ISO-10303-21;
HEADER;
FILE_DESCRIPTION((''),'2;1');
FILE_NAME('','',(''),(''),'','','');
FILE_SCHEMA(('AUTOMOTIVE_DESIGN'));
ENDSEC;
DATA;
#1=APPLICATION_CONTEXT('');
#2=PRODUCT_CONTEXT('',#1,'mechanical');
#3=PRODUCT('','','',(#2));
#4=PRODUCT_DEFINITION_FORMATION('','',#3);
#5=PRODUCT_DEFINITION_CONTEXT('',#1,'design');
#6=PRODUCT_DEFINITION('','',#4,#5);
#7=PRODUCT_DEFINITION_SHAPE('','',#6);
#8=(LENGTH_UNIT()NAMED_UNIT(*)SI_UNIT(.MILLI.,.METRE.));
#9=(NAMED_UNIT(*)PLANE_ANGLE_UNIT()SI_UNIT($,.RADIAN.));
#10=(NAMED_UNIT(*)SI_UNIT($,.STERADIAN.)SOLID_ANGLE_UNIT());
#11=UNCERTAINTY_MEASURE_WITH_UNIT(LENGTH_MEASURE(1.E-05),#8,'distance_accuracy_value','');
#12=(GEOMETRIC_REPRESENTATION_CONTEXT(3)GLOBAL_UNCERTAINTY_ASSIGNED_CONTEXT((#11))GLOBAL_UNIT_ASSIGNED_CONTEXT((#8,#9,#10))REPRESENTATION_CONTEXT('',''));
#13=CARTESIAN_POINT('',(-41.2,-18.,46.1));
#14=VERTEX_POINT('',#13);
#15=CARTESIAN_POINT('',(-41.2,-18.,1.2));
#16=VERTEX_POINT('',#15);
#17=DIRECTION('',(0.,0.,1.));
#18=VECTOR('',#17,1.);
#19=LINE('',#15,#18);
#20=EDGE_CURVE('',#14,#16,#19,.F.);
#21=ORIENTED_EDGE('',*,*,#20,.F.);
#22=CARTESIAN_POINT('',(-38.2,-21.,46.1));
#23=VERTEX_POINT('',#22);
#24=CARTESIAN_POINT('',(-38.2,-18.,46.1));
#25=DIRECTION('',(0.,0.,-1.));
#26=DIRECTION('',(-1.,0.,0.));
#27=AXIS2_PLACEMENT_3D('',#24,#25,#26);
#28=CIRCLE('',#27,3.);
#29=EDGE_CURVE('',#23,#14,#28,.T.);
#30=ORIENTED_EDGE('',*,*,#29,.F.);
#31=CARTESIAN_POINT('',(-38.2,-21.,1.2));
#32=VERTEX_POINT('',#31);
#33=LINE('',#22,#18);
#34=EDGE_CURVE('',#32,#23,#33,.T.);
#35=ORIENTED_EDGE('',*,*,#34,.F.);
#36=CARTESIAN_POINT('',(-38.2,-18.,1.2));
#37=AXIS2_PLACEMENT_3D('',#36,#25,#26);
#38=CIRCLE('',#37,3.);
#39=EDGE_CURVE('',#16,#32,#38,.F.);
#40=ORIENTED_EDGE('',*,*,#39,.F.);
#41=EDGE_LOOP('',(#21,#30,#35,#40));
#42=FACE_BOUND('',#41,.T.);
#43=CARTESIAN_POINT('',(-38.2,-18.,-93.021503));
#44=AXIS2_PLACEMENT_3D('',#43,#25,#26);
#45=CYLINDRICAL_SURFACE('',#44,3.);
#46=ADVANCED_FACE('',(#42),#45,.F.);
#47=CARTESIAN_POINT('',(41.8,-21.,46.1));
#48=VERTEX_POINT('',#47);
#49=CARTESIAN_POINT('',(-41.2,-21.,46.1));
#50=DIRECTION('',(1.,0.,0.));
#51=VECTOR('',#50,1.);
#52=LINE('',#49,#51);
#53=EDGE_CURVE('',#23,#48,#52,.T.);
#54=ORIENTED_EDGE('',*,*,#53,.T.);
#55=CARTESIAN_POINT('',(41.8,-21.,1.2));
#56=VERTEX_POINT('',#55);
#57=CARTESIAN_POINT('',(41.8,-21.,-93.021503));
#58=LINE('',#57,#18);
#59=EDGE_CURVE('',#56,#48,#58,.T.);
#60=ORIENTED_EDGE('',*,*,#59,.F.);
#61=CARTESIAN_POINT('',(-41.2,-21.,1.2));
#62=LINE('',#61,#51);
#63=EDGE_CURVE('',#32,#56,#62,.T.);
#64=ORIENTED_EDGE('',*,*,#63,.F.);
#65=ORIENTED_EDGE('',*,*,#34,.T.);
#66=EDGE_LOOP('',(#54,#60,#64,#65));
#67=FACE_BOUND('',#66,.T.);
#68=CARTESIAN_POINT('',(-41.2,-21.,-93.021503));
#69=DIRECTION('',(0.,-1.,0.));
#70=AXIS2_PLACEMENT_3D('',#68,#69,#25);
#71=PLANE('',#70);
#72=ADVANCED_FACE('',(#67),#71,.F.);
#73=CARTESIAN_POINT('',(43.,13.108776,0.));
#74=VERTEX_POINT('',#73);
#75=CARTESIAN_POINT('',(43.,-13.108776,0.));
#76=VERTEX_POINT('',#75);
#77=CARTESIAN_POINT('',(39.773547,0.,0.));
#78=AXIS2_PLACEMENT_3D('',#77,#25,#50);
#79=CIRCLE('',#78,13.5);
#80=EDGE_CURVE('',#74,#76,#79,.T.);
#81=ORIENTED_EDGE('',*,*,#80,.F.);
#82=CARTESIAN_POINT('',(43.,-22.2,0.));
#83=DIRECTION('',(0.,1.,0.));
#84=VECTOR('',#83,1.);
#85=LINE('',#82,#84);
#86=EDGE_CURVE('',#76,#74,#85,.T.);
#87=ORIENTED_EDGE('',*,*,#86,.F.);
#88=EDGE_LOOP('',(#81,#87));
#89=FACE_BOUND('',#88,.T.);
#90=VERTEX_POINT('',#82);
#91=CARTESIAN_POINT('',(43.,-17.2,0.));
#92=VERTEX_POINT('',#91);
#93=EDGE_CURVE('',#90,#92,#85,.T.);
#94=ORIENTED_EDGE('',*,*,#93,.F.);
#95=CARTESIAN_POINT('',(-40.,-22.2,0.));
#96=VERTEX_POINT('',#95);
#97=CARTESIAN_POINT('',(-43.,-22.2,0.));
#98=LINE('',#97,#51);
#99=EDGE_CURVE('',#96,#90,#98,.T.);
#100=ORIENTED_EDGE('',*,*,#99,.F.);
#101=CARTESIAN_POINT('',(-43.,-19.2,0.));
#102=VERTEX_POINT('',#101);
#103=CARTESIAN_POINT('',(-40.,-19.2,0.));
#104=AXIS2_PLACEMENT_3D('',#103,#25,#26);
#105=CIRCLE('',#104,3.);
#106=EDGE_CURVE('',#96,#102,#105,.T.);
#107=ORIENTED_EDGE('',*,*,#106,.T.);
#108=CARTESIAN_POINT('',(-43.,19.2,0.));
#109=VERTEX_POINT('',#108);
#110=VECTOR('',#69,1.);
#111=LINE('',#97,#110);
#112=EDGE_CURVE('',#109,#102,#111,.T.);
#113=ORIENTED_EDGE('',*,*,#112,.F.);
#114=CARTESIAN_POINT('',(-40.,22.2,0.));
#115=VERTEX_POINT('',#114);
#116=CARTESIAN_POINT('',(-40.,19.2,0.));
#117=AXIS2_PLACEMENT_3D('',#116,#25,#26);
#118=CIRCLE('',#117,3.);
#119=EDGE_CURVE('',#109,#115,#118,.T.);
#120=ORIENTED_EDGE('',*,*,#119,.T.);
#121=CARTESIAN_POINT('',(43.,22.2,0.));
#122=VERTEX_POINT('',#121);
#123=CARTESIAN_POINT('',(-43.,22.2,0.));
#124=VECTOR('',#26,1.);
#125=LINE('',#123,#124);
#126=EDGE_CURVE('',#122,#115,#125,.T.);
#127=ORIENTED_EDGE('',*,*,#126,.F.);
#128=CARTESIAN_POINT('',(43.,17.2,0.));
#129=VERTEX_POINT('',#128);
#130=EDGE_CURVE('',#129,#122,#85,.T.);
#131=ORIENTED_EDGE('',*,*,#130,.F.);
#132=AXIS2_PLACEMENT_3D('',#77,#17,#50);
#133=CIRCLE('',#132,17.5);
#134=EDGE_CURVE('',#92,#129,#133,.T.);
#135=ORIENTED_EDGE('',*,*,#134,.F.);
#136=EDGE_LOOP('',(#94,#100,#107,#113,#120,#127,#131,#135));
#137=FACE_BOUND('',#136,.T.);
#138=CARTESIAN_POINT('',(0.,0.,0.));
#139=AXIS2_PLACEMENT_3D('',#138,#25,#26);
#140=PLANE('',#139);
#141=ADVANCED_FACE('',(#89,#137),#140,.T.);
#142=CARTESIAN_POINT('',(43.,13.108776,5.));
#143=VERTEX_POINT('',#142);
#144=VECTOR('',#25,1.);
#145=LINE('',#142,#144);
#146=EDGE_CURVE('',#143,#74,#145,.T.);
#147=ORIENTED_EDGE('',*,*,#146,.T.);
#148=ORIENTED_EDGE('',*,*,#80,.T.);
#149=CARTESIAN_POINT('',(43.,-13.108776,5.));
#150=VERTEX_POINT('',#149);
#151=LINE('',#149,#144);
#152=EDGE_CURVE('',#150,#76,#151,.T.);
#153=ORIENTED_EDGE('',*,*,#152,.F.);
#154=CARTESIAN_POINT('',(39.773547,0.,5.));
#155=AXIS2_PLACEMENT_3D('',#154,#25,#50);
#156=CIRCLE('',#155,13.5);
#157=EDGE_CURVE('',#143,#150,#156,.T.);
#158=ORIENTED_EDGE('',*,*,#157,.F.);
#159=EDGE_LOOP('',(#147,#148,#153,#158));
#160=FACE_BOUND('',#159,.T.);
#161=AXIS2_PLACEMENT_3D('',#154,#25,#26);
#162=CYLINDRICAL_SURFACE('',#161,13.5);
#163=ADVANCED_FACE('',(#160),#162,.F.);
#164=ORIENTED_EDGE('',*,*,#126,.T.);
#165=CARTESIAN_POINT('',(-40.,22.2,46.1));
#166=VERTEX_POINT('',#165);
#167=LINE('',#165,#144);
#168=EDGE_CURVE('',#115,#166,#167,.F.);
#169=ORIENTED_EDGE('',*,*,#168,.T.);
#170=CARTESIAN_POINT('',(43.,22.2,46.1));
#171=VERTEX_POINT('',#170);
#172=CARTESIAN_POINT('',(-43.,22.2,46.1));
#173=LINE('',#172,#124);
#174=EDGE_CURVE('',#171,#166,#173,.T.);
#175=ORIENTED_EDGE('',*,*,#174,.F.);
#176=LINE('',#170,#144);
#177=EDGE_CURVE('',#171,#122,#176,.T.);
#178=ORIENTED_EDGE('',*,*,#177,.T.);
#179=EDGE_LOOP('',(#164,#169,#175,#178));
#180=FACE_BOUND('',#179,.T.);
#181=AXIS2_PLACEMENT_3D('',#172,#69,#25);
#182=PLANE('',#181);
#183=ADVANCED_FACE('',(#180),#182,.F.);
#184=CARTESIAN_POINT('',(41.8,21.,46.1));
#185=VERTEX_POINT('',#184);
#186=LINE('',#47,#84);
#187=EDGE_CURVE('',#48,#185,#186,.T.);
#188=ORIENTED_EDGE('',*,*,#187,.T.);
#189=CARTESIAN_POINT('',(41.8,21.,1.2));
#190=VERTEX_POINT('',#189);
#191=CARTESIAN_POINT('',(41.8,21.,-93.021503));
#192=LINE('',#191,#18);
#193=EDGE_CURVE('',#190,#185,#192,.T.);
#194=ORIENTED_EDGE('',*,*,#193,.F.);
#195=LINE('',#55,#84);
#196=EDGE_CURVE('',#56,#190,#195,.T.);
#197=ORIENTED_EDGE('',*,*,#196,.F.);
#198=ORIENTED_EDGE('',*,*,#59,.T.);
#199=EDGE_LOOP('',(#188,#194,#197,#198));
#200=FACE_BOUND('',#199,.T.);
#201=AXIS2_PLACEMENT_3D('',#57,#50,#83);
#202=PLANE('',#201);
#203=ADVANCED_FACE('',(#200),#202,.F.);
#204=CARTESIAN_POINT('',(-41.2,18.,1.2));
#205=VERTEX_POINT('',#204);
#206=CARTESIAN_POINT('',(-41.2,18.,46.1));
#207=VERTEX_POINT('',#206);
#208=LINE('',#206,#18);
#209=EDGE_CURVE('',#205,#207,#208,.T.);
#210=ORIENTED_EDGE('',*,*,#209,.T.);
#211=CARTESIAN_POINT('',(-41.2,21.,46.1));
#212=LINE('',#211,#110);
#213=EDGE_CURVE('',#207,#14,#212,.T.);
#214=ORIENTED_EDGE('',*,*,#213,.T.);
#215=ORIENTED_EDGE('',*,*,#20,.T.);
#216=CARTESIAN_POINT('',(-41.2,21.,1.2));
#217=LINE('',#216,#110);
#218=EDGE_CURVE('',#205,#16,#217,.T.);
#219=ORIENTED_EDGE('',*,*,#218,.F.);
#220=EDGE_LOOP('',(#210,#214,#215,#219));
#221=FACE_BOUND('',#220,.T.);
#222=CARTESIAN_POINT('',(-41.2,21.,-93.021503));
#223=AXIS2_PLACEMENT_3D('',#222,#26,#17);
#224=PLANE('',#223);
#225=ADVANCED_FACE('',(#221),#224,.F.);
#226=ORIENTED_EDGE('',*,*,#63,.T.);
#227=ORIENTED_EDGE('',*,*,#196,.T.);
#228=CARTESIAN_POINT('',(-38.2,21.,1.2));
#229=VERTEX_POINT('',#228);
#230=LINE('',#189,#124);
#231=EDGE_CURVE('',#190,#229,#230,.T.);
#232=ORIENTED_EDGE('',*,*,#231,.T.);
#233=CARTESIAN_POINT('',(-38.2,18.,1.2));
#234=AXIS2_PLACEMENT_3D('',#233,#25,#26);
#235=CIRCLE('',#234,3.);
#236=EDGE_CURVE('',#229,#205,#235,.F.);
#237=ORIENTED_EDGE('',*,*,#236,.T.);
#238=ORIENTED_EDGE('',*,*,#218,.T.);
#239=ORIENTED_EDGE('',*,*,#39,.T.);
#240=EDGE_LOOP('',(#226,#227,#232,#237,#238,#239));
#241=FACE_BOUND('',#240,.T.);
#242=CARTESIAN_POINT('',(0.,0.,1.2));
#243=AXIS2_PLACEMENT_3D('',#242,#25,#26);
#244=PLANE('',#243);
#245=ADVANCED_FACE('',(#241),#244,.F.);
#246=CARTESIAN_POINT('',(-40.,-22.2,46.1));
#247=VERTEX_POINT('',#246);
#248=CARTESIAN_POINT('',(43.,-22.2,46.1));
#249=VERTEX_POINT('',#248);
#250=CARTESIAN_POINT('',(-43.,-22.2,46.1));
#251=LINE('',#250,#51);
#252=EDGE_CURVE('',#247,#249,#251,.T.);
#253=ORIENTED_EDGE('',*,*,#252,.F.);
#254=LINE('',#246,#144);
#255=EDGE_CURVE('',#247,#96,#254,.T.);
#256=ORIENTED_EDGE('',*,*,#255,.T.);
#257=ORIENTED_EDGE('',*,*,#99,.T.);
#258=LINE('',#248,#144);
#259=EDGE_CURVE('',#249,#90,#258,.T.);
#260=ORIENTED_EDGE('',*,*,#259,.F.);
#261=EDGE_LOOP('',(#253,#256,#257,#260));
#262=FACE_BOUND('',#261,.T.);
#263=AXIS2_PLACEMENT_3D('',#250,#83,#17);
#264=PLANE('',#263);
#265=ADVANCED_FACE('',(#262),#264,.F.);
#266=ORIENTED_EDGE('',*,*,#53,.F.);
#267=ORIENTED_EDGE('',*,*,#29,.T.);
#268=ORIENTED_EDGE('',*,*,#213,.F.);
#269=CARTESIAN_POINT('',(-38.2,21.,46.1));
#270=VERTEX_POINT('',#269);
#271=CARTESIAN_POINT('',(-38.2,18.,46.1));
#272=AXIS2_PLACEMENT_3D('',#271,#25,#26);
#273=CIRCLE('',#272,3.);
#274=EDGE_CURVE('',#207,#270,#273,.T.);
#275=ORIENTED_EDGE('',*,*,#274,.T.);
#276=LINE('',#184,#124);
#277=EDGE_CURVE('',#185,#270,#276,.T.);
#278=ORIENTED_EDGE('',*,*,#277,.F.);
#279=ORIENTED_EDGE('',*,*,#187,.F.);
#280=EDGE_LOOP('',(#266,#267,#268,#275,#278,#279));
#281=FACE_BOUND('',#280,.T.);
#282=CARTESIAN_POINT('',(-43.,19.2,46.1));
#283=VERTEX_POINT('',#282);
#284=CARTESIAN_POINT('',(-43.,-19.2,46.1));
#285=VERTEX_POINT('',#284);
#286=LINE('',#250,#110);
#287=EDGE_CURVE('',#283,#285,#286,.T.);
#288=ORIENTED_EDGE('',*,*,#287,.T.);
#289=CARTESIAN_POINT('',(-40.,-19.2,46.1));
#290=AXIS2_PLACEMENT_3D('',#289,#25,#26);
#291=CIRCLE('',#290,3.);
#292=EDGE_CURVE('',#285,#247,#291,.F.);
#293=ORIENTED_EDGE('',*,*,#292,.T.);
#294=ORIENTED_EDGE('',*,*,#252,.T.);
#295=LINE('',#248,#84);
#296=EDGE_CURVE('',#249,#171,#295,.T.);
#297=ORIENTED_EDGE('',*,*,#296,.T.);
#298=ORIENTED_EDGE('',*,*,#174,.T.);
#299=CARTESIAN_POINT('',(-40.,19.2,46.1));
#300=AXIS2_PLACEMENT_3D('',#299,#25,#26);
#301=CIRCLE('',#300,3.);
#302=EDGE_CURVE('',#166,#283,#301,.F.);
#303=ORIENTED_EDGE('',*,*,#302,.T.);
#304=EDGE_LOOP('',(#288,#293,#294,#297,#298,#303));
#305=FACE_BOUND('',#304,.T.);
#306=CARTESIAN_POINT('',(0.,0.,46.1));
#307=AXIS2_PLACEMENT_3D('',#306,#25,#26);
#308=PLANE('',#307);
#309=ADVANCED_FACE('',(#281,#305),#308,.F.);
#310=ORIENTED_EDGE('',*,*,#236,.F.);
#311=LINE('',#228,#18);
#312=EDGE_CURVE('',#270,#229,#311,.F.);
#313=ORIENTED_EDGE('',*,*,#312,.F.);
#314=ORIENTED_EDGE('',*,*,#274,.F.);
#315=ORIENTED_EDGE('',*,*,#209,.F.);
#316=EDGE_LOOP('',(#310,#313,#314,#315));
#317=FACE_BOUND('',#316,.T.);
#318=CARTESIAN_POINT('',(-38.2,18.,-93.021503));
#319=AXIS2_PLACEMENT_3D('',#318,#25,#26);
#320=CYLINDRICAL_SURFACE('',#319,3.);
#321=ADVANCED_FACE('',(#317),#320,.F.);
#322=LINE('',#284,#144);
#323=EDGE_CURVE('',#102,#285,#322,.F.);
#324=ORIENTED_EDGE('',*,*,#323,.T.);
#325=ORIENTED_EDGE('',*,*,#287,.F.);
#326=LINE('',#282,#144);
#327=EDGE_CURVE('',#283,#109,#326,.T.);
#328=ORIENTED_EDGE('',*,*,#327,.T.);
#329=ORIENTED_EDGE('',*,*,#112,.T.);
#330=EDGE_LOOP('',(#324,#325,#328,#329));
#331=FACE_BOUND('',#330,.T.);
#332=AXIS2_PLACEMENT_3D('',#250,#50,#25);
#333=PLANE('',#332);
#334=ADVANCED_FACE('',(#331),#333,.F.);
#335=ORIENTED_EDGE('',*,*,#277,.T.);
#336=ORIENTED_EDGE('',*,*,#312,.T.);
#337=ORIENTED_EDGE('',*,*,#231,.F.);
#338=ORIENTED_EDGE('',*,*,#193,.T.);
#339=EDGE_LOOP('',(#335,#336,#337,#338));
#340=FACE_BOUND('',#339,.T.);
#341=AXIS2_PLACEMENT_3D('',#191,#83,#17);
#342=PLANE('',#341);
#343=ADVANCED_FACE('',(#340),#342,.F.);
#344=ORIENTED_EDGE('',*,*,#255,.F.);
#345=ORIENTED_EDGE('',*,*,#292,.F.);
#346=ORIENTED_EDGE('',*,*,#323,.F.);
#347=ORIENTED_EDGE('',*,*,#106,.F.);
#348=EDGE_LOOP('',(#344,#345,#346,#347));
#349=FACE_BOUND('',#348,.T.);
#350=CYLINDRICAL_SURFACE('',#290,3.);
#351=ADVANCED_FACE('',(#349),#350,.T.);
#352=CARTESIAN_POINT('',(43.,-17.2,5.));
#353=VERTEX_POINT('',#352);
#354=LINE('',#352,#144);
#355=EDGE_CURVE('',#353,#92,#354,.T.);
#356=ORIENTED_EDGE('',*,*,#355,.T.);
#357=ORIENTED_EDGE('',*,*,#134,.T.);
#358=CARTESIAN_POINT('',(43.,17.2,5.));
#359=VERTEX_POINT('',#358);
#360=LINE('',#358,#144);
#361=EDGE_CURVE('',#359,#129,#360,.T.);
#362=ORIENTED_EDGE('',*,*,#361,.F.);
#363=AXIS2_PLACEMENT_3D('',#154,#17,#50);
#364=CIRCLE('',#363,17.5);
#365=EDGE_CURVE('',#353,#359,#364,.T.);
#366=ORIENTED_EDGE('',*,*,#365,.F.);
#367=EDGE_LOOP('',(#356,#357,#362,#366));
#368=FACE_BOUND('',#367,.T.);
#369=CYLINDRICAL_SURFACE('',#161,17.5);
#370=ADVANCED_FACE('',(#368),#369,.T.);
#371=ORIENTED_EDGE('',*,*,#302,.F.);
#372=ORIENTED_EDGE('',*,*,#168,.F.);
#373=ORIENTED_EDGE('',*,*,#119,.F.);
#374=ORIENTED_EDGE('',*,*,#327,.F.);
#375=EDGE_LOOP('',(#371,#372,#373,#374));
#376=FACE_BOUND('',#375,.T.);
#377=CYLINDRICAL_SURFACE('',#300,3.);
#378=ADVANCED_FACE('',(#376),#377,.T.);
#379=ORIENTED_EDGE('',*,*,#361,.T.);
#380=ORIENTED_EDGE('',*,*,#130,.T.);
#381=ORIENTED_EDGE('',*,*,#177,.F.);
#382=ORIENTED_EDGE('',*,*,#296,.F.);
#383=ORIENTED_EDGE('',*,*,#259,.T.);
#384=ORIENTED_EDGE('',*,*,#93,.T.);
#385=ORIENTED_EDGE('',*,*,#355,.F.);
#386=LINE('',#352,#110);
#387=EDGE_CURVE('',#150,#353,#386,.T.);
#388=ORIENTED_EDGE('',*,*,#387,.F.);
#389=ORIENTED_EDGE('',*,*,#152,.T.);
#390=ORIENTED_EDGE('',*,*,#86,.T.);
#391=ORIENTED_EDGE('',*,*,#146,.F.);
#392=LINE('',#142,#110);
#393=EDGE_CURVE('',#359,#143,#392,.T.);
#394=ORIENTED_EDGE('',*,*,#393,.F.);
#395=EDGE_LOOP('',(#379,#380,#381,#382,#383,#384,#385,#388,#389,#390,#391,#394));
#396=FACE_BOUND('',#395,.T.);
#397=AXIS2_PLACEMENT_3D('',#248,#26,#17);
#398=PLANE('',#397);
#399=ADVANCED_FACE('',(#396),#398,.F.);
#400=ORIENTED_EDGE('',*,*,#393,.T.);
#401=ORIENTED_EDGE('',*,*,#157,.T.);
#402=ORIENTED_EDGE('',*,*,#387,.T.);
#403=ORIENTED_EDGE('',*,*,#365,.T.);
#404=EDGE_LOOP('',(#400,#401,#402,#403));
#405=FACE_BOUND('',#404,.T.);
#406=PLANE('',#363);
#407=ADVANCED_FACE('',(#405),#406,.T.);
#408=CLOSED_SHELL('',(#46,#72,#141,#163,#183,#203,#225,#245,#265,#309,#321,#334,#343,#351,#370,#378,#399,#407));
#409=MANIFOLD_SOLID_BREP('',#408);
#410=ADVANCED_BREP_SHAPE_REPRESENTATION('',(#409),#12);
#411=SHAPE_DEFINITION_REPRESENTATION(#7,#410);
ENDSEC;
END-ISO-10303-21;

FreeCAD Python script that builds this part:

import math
import FreeCAD as App
import Part
import Sketcher


def edges_at(feature, points):
    """Names of the edges that pass closest to the given points."""
    edges = feature.Shape.Edges
    near = lambda p: min(range(len(edges)), key=lambda i: edges[i].distToShape(Part.Vertex(*p))[0])
    return sorted({f"Edge{near(p) + 1}" for p in points})

doc = App.newDocument("Part")
body = doc.addObject("PartDesign::Body", "Body")

sketch1 = body.newObject("Sketcher::SketchObject", "Sketch")
sketch1.AttachmentSupport = (doc.getObject("XY_Plane"), [""])
sketch1.MapMode = "FlatFace"
sketch1.addGeometry(Part.LineSegment(App.Vector(-43, 22, 0), App.Vector(-43, -22, 0)), False)
sketch1.addGeometry(Part.LineSegment(App.Vector(-43, -22, 0), App.Vector(43, -22, 0)), False)
sketch1.addGeometry(Part.LineSegment(App.Vector(43, -22, 0), App.Vector(43, 22, 0)), False)
sketch1.addGeometry(Part.LineSegment(App.Vector(43, 22, 0), App.Vector(-43, 22, 0)), False)
sketch1.addConstraint(Sketcher.Constraint("Coincident", 0, 2, 1, 1))
sketch1.addConstraint(Sketcher.Constraint("Coincident", 1, 2, 2, 1))
sketch1.addConstraint(Sketcher.Constraint("Coincident", 2, 2, 3, 1))
sketch1.addConstraint(Sketcher.Constraint("Coincident", 3, 2, 0, 1))
sketch1.addConstraint(Sketcher.Constraint("Vertical", 0))
sketch1.addConstraint(Sketcher.Constraint("Horizontal", 1))
sketch1.addConstraint(Sketcher.Constraint("Vertical", 2))
sketch1.addConstraint(Sketcher.Constraint("Horizontal", 3))
sketch1.addConstraint(Sketcher.Constraint("Symmetric", 0, 2, 2, 2, -1, 1))
sketch1.addConstraint(Sketcher.Constraint("DistanceX", 1, 1, 1, 2, 86.0))
sketch1.addConstraint(Sketcher.Constraint("DistanceY", 0, 2, 0, 1, 44.4))
pad1 = body.newObject("PartDesign::Pad", "Pad")
pad1.Profile = sketch1
pad1.Length = 46.1

sketch2 = body.newObject("Sketcher::SketchObject", "Sketch001")
sketch2.AttachmentSupport = (doc.getObject("XY_Plane"), [""])
sketch2.MapMode = "FlatFace"
sketch2.addGeometry(Part.LineSegment(App.Vector(43, 17.2, 0), App.Vector(43, 13.1, 0)), False)
sketch2.addGeometry(Part.ArcOfCircle(Part.Circle(App.Vector(39.8, 0, 0), App.Vector(0, 0, 1), 13.5), math.radians(-76), math.radians(76)), False)
sketch2.addGeometry(Part.LineSegment(App.Vector(43, -13.1, 0), App.Vector(43, -17.2, 0)), False)
sketch2.addGeometry(Part.ArcOfCircle(Part.Circle(App.Vector(39.8, 0, 0), App.Vector(0, 0, 1), 17.5), math.radians(-79), math.radians(79)), False)
sketch2.addConstraint(Sketcher.Constraint("Coincident", 0, 2, 1, 2))
sketch2.addConstraint(Sketcher.Constraint("Coincident", 1, 1, 2, 1))
sketch2.addConstraint(Sketcher.Constraint("Coincident", 2, 2, 3, 1))
sketch2.addConstraint(Sketcher.Constraint("Coincident", 3, 2, 0, 1))
sketch2.addConstraint(Sketcher.Constraint("Vertical", 0))
sketch2.addConstraint(Sketcher.Constraint("Vertical", 2))
sketch2.addConstraint(Sketcher.Constraint("Coincident", 3, 3, 1, 3))
sketch2.addConstraint(Sketcher.Constraint("Symmetric", 0, 2, 1, 1, -1))
sketch2.addConstraint(Sketcher.Constraint("Radius", 1, 13.5))
sketch2.addConstraint(Sketcher.Constraint("Radius", 3, 17.5))
sketch2.addConstraint(Sketcher.Constraint("DistanceX", -1, 1, 0, 2, 43.0))
sketch2.addConstraint(Sketcher.Constraint("DistanceY", 2, 2, -1, 1, 17.2))
pad2 = body.newObject("PartDesign::Pad", "Pad001")
pad2.Profile = sketch2
pad2.Length = 5

sketch3 = body.newObject("Sketcher::SketchObject", "Sketch002")
sketch3.AttachmentSupport = (doc.getObject("XY_Plane"), [""])
sketch3.MapMode = "FlatFace"
sketch3.AttachmentOffset = App.Placement(App.Vector(0, 0, 46.1), App.Rotation())
sketch3.addGeometry(Part.LineSegment(App.Vector(-41, 21, 0), App.Vector(-41, -21, 0)), False)
sketch3.addGeometry(Part.LineSegment(App.Vector(-41, -21, 0), App.Vector(42, -21, 0)), False)
sketch3.addGeometry(Part.LineSegment(App.Vector(42, -21, 0), App.Vector(42, 21, 0)), False)
sketch3.addGeometry(Part.LineSegment(App.Vector(42, 21, 0), App.Vector(-41, 21, 0)), False)
sketch3.addConstraint(Sketcher.Constraint("Coincident", 0, 2, 1, 1))
sketch3.addConstraint(Sketcher.Constraint("Coincident", 1, 2, 2, 1))
sketch3.addConstraint(Sketcher.Constraint("Coincident", 2, 2, 3, 1))
sketch3.addConstraint(Sketcher.Constraint("Coincident", 3, 2, 0, 1))
sketch3.addConstraint(Sketcher.Constraint("Vertical", 0))
sketch3.addConstraint(Sketcher.Constraint("Horizontal", 1))
sketch3.addConstraint(Sketcher.Constraint("Vertical", 2))
sketch3.addConstraint(Sketcher.Constraint("Horizontal", 3))
sketch3.addConstraint(Sketcher.Constraint("DistanceX", 1, 1, 1, 2, 83.0))
sketch3.addConstraint(Sketcher.Constraint("DistanceY", 0, 2, 0, 1, 42.0))
sketch3.addConstraint(Sketcher.Constraint("DistanceY", 0, 2, -1, 1, 21.0))
sketch3.addConstraint(Sketcher.Constraint("DistanceX", 0, 2, -1, 1, 41.2))
pocket1 = body.newObject("PartDesign::Pocket", "Pocket")
pocket1.Profile = sketch3
pocket1.Length = 44.9
doc.recompute()

fillet = body.newObject("PartDesign::Fillet", "Fillet")
fillet.Base = (pocket1, edges_at(pocket1, [
    (-41.2, 21, 23.65),
    (-41.2, -21, 23.65),
    (-43, -22.2, 23.05),
    (-43, 22.2, 23.05),
]))
fillet.Radius = 3

doc.recompute()
